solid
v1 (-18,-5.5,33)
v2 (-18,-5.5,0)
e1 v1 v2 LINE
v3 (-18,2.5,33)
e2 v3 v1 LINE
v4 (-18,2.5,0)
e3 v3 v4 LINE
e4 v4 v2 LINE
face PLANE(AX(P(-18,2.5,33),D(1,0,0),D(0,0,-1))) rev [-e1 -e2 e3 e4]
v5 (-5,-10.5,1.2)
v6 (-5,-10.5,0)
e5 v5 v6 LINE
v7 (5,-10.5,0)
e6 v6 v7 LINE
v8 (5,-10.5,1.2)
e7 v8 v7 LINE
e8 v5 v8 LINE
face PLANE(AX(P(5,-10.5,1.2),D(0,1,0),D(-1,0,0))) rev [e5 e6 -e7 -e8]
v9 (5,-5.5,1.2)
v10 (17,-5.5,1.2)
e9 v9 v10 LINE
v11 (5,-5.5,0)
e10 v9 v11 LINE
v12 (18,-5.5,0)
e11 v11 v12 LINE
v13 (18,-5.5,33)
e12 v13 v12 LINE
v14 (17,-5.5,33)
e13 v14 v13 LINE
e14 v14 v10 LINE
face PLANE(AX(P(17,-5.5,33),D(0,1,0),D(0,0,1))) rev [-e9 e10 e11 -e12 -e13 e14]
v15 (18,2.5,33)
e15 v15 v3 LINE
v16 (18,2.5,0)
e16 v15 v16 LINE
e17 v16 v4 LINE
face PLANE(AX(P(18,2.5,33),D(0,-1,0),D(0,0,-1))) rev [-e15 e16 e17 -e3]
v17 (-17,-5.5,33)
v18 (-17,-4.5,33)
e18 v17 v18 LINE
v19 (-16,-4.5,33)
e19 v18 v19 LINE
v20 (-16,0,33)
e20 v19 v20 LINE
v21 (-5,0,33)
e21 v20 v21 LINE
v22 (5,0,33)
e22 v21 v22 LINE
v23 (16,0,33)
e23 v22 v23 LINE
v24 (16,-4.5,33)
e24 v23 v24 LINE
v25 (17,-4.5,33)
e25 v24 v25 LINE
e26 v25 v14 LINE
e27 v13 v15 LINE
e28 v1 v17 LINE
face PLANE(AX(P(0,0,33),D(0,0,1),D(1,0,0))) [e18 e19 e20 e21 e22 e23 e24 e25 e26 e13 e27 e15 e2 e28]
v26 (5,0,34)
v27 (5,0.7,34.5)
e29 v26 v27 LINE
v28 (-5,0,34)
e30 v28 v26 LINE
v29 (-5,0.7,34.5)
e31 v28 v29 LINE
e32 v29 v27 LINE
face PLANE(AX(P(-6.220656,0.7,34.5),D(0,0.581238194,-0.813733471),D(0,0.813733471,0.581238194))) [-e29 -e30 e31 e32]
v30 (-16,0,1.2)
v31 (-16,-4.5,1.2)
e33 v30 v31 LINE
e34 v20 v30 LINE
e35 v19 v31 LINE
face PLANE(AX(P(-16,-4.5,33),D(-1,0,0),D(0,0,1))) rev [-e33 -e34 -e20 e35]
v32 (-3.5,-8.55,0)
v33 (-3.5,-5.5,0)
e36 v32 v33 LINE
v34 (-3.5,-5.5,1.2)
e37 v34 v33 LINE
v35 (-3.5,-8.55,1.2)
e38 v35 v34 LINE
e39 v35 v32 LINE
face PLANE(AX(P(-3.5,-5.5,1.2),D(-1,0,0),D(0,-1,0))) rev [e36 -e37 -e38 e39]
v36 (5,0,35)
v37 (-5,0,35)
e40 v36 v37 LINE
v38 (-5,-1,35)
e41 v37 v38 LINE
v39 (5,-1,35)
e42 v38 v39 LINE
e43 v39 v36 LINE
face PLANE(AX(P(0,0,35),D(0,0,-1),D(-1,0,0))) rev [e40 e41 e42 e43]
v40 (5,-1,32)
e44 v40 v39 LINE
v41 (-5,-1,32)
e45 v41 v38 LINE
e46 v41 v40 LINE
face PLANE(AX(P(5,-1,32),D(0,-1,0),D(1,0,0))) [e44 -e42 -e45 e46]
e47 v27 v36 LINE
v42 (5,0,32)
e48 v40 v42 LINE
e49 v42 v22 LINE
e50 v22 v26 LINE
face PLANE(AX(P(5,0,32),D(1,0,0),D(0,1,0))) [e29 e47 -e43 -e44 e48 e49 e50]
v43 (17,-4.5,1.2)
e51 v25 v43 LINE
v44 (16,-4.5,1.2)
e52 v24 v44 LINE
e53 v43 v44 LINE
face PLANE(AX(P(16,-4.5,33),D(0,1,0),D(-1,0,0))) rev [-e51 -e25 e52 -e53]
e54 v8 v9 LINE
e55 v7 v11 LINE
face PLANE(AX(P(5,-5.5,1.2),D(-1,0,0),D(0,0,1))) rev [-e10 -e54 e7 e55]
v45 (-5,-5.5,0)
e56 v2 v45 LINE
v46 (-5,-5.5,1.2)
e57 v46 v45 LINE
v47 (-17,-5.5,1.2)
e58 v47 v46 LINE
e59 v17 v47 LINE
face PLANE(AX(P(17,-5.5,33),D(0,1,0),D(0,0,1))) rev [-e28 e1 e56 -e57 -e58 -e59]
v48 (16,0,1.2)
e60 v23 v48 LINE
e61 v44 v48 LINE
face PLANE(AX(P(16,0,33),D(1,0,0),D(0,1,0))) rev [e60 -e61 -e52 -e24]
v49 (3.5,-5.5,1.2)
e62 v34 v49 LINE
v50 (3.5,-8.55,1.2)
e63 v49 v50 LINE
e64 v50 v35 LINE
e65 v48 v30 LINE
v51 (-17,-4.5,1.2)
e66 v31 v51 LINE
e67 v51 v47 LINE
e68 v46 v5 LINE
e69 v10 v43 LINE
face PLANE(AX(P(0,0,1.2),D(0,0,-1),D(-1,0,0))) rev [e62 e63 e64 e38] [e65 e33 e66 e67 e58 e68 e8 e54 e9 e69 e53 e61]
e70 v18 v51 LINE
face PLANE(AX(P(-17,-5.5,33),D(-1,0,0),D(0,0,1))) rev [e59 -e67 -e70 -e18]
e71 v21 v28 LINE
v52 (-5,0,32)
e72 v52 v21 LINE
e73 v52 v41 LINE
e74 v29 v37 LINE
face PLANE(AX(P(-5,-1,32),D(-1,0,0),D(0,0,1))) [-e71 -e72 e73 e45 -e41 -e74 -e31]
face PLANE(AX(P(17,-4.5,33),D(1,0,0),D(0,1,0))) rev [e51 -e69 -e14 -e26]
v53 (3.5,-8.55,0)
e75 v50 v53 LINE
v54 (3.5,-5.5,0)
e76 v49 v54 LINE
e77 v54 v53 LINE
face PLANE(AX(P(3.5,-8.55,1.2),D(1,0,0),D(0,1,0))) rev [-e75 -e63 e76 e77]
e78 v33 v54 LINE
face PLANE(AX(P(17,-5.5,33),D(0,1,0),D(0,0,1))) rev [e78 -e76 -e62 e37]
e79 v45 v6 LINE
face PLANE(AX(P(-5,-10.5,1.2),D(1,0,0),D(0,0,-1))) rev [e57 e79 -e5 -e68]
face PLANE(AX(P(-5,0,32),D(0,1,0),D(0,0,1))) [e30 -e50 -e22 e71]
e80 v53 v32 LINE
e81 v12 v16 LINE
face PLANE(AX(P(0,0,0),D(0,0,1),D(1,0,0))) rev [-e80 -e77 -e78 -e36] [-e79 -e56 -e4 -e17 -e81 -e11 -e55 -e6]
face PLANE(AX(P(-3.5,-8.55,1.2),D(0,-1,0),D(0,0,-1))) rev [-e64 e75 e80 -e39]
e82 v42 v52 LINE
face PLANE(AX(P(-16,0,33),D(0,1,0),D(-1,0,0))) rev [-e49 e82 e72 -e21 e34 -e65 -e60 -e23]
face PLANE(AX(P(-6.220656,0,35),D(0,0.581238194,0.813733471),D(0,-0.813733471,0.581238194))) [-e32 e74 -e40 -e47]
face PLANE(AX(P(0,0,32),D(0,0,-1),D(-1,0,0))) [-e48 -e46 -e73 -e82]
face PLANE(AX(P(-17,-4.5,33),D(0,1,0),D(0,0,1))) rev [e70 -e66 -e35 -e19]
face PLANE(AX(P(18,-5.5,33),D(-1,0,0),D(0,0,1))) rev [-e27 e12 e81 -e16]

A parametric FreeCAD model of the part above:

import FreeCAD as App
import Part
import Sketcher
from FreeCAD import Vector


def add_polygon(sketch, points):
    """Adds a closed chain of lines whose ends are joined by coincident constraints."""
    first, n = sketch.GeometryCount, len(points)
    for a, b in zip(points, points[1:] + points[:1]):
        sketch.addGeometry(Part.LineSegment(App.Vector(*a, 0), App.Vector(*b, 0)), False)
    for i in range(n):
        sketch.addConstraint(Sketcher.Constraint("Coincident", first + i, 2, first + (i + 1) % n, 1))

doc = App.newDocument("Part")
body = doc.addObject("PartDesign::Body", "Body")

# Sketch on XY plane
sketch1 = body.newObject("Sketcher::SketchObject", "Sketch")
sketch1.AttachmentSupport = (doc.getObject("XY_Plane"), [""])
sketch1.MapMode = "FlatFace"
add_polygon(sketch1, [(-18, -5.5), (-17, -5.5), (-17, -4.5), (-16, -4.5), (-16, 0), (16, 0), (16, -4.5), (17, -4.5), (17, -5.5), (18, -5.5), (18, 2.5), (-18, 2.5)])  # lines 0-11
sketch1.addConstraint([
    Sketcher.Constraint("Horizontal", 0),
    Sketcher.Constraint("Vertical", 1),
    Sketcher.Constraint("Horizontal", 2),
    Sketcher.Constraint("Vertical", 3),
    Sketcher.Constraint("Horizontal", 4),
    Sketcher.Constraint("Vertical", 5),
    Sketcher.Constraint("Horizontal", 6),
    Sketcher.Constraint("Vertical", 7),
    Sketcher.Constraint("Horizontal", 8),
    Sketcher.Constraint("Vertical", 9),
    Sketcher.Constraint("Horizontal", 10),
    Sketcher.Constraint("Vertical", 11),
    Sketcher.Constraint("Symmetric", 3, 2, 4, 2, -1, 1),
    Sketcher.Constraint("Symmetric", 1, 2, 6, 2, -2),
    Sketcher.Constraint("Symmetric", 8, 2, 11, 2, -2),
    Sketcher.Constraint("Equal", 0, 2),
    Sketcher.Constraint("Equal", 8, 1),
    Sketcher.Constraint("DistanceX", 0, 1, 0, 2, 1.0),
    Sketcher.Constraint("DistanceX", 4, 1, 4, 2, 32.0),
    Sketcher.Constraint("DistanceY", 9, 1, 9, 2, 8.0),
    Sketcher.Constraint("DistanceY", 3, 1, 3, 2, 4.5),
])
pad1 = body.newObject("PartDesign::Pad", "Pad")
pad1.Profile = sketch1
pad1.Length = 33

# Sketch on XY plane
sketch2 = body.newObject("Sketcher::SketchObject", "Sketch001")
sketch2.AttachmentSupport = (doc.getObject("XY_Plane"), [""])
sketch2.MapMode = "FlatFace"
add_polygon(sketch2, [(-17, -5.5), (17, -5.5), (17, -4.5), (16, -4.5), (16, 0), (-16, 0), (-16, -4.5), (-17, -4.5)])  # lines 0-7
sketch2.addConstraint([
    Sketcher.Constraint("Horizontal", 0),
    Sketcher.Constraint("Vertical", 1),
    Sketcher.Constraint("Horizontal", 2),
    Sketcher.Constraint("Vertical", 3),
    Sketcher.Constraint("Horizontal", 4),
    Sketcher.Constraint("Vertical", 5),
    Sketcher.Constraint("Horizontal", 6),
    Sketcher.Constraint("Vertical", 7),
    Sketcher.Constraint("Symmetric", 3, 2, 4, 2, -1, 1),
    Sketcher.Constraint("Symmetric", 1, 2, 6, 2, -2),
    Sketcher.Constraint("Equal", 6, 1),
    Sketcher.Constraint("DistanceX", 0, 1, 0, 2, 34.0),
    Sketcher.Constraint("DistanceX", 2, 2, 2, 1, 1.0),
    Sketcher.Constraint("DistanceY", 3, 1, 3, 2, 4.5),
])
pad2 = body.newObject("PartDesign::Pad", "Pad001")
pad2.Profile = sketch2
pad2.Length = 1.2

# Sketch on XY plane
sketch3 = body.newObject("Sketcher::SketchObject", "Sketch002")
sketch3.AttachmentSupport = (doc.getObject("XY_Plane"), [""])
sketch3.MapMode = "FlatFace"
add_polygon(sketch3, [(5, -10.5), (5, -5.5), (3.5, -5.5), (3.5, -8.6), (-3.5, -8.6), (-3.5, -5.5), (-5, -5.5), (-5, -10.5)])  # lines 0-7
sketch3.addConstraint([
    Sketcher.Constraint("Vertical", 0),
    Sketcher.Constraint("Horizontal", 1),
    Sketcher.Constraint("Vertical", 2),
    Sketcher.Constraint("Horizontal", 3),
    Sketcher.Constraint("Vertical", 4),
    Sketcher.Constraint("Horizontal", 5),
    Sketcher.Constraint("Vertical", 6),
    Sketcher.Constraint("Horizontal", 7),
    Sketcher.Constraint("Symmetric", 1, 2, 4, 2, -2),
    Sketcher.Constraint("Equal", 1, 5),
    Sketcher.Constraint("DistanceX", 3, 2, 3, 1, 7.0),
    Sketcher.Constraint("DistanceX", 7, 1, 7, 2, 10.0),
    Sketcher.Constraint("DistanceY", 0, 1, 0, 2, 5.0),
    Sketcher.Constraint("DistanceY", 2, 2, 2, 1, 3.05),
    Sketcher.Constraint("DistanceY", 0, 2, -1, 1, 5.5),
])
pad3 = body.newObject("PartDesign::Pad", "Pad002")
pad3.Profile = sketch3
pad3.Length = 1.2

# Sketch on XY plane
sketch4 = body.newObject("Sketcher::SketchObject", "Sketch003")
sketch4.AttachmentSupport = (doc.getObject("XY_Plane"), [""])
sketch4.MapMode = "FlatFace"
sketch4.AttachmentOffset = App.Placement(Vector(0, 0, 33), App.Rotation())
add_polygon(sketch4, [(-5, 0), (-5, -1), (5, -1), (5, 0)])  # lines 0-3
sketch4.addConstraint([
    Sketcher.Constraint("Vertical", 0),
    Sketcher.Constraint("Horizontal", 1),
    Sketcher.Constraint("Vertical", 2),
    Sketcher.Constraint("Horizontal", 3),
    Sketcher.Constraint("Symmetric", 2, 2, 3, 2, -1, 1),
    Sketcher.Constraint("DistanceX", 1, 1, 1, 2, 10.0),
    Sketcher.Constraint("DistanceY", 0, 2, 0, 1, 1.0),
])
pad4 = body.newObject("PartDesign::Pad", "Pad003")
pad4.Profile = sketch4
pad4.Type = "TwoLengths"
pad4.Length = 2
pad4.Length2 = 1

# Sketch on YZ plane
sketch5 = body.newObject("Sketcher::SketchObject", "Sketch004")
sketch5.AttachmentSupport = (doc.getObject("YZ_Plane"), [""])
sketch5.MapMode = "FlatFace"
sketch5.AttachmentOffset = App.Placement(Vector(0, 0, 5), App.Rotation())
add_polygon(sketch5, [(0.7, 34.5), (0, 35), (0, 34)])  # lines 0-2
sketch5.addConstraint([
    Sketcher.Constraint("Vertical", 1),
    Sketcher.Constraint("PointOnObject", 0, 2, -2),
    Sketcher.Constraint("Equal", 0, 2),
    Sketcher.Constraint("DistanceY", 1, 2, 1, 1, 1.0),
    Sketcher.Constraint("DistanceY", -1, 1, 0, 2, 35.0),
    Sketcher.Constraint("DistanceX", -1, 1, 2, 2, 0.7),
])
pad5 = body.newObject("PartDesign::Pad", "Pad004")
pad5.Profile = sketch5
pad5.Length = 10
pad5.Reversed = True

doc.recompute()
